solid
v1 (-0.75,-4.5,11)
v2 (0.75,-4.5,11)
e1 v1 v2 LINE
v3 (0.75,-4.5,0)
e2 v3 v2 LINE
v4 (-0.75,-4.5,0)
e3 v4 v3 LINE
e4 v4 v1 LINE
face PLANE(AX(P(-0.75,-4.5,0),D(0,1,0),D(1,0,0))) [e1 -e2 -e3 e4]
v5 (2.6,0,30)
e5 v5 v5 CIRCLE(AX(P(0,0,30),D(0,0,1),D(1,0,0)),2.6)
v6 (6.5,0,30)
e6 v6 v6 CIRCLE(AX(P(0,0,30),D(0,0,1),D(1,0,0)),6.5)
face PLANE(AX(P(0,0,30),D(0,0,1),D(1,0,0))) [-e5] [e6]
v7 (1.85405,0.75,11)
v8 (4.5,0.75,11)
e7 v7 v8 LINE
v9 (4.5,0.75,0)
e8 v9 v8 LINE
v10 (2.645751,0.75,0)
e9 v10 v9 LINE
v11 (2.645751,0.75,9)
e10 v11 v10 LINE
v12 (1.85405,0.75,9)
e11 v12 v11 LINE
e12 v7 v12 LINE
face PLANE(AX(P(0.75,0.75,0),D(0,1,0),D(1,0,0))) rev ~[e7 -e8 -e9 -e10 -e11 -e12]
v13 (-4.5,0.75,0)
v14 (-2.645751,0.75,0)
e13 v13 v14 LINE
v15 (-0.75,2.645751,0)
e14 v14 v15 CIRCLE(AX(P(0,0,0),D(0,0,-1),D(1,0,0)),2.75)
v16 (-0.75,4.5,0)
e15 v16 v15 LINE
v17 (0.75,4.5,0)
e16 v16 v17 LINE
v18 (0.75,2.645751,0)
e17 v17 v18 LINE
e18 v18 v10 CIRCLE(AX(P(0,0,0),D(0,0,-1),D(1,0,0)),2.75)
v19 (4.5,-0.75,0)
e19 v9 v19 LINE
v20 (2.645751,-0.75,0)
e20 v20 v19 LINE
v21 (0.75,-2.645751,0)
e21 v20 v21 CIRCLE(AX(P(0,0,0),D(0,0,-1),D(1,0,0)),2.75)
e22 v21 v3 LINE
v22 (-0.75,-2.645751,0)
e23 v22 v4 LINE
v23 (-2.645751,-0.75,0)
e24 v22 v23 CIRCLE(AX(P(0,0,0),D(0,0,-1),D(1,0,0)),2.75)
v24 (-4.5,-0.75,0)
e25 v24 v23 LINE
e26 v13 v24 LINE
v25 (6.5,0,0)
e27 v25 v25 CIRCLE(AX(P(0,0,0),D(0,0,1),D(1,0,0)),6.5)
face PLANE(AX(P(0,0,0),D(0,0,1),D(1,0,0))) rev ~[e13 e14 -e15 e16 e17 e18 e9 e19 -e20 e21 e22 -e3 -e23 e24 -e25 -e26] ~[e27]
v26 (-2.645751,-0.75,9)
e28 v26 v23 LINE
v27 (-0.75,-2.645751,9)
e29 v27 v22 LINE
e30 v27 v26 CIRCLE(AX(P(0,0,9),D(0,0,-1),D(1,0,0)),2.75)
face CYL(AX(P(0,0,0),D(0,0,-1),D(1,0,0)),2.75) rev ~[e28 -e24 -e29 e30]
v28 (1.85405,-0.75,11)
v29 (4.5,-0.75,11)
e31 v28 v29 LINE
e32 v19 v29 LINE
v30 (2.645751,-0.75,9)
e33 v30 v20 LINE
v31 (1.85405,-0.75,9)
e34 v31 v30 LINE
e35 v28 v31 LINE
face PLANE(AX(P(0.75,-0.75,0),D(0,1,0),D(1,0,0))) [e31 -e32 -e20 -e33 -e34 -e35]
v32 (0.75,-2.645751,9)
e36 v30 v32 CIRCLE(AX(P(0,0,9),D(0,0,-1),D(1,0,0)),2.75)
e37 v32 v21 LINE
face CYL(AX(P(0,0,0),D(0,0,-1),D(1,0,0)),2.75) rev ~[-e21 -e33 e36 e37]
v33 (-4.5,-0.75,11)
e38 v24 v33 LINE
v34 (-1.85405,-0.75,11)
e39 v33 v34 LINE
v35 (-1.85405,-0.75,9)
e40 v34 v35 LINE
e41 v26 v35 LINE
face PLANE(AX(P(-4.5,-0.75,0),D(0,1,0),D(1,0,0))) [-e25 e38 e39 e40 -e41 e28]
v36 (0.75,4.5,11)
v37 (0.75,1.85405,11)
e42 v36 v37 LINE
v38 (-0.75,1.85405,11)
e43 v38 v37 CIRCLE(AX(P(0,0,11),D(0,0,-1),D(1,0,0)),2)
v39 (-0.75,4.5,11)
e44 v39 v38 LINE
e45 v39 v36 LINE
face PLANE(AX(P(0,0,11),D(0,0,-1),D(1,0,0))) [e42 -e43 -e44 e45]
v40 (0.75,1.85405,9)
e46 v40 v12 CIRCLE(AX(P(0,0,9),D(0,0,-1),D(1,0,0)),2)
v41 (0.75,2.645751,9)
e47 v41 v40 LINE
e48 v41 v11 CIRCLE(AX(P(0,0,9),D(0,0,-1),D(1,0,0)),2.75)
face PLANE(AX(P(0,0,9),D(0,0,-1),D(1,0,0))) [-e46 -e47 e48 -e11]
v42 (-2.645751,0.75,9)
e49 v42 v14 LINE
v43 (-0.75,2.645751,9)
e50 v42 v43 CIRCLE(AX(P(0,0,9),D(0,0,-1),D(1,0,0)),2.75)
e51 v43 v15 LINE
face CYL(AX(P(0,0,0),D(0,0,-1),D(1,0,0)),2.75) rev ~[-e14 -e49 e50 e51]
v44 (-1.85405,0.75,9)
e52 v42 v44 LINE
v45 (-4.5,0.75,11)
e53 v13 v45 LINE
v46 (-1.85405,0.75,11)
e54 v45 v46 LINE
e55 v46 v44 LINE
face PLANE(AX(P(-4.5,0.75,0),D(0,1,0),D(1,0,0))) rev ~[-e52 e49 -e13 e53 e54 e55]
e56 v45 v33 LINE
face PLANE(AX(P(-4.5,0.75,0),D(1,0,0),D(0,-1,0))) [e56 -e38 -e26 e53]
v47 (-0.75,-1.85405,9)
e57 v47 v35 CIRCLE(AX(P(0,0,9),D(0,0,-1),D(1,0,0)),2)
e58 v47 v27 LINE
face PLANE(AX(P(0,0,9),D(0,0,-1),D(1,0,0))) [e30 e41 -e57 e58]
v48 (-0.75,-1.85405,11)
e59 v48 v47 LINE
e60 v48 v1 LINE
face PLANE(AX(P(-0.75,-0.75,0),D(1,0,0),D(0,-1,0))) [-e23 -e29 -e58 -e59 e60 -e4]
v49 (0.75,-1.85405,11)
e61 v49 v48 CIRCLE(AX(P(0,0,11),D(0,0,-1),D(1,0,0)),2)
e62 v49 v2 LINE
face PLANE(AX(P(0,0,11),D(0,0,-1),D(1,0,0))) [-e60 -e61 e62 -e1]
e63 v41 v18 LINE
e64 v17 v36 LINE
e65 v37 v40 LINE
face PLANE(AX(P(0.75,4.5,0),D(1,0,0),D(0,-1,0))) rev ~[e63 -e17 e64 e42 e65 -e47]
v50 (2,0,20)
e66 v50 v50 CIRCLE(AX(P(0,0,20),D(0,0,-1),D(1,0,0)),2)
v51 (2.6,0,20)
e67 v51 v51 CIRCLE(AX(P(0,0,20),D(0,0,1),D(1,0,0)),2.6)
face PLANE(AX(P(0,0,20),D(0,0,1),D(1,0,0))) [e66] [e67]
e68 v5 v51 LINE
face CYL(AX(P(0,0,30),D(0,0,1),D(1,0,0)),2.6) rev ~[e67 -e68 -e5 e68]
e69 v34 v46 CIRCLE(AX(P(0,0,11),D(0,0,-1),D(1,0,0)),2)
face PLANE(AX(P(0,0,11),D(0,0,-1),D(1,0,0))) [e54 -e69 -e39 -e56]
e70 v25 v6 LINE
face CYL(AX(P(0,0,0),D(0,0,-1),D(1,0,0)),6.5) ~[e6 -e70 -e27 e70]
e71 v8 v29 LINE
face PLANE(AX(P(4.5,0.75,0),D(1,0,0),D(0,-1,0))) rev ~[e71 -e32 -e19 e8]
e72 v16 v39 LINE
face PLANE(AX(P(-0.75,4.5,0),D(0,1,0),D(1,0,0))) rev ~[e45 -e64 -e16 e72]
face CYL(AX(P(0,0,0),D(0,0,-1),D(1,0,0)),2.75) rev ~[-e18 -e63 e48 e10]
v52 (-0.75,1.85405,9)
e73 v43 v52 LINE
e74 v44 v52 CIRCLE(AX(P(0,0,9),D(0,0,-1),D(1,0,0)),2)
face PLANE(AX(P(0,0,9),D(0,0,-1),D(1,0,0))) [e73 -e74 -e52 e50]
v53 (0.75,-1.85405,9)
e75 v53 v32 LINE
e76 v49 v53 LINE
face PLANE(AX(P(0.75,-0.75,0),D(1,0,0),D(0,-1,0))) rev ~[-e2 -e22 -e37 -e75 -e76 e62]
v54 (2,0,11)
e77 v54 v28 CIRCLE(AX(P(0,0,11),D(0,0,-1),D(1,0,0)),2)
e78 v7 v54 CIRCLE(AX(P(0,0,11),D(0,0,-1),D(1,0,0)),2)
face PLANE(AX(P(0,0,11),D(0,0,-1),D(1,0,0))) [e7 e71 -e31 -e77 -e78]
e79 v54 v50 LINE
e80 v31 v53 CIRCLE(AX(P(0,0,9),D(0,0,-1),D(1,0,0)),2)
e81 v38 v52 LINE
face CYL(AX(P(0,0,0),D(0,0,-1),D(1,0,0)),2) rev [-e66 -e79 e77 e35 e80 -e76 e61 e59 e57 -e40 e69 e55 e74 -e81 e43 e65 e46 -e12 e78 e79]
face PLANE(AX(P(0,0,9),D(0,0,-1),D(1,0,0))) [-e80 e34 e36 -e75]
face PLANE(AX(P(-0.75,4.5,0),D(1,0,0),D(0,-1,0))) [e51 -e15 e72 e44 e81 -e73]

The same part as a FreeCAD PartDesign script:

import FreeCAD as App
import Part
import Sketcher

V = App.Vector


def add_polygon(sketch, points):
    """Adds a closed chain of lines whose ends are joined by coincident constraints."""
    first, n = sketch.GeometryCount, len(points)
    for a, b in zip(points, points[1:] + points[:1]):
        sketch.addGeometry(Part.LineSegment(App.Vector(*a, 0), App.Vector(*b, 0)), False)
    for i in range(n):
        sketch.addConstraint(Sketcher.Constraint("Coincident", first + i, 2, first + (i + 1) % n, 1))

doc = App.newDocument("Part")
params = doc.addObject("Spreadsheet::Sheet", "Params")
for row, (alias, value) in enumerate([
    ("sketch1_diameter", "13 mm"),
    ("sketch1_diameter2", "4 mm"),
    ("pad1_length", "30 mm"),
    ("sketch2_diameter", "5.2 mm"),
    ("pocket1_length", "10 mm"),
    ("sketch3_diameter", "5.5 mm"),
    ("pocket2_length", "9 mm"),
    ("sketch4_width", "1.5 mm"),
    ("pocket3_length", "11 mm"),
], start=1):
    params.set(f"A{row}", alias)
    params.set(f"B{row}", "=" + value)
    params.setAlias(f"B{row}", alias)

body = doc.addObject("PartDesign::Body", "Body")

sketch1 = body.newObject("Sketcher::SketchObject", "Sketch")
sketch1.AttachmentSupport = (doc.getObject("XY_Plane"), [""])
sketch1.MapMode = "FlatFace"
sketch1.addGeometry([
    Part.Circle(V(0, 0, 0), V(0, 0, 1), 6.5),
    Part.Circle(V(0, 0, 0), V(0, 0, 1), 2),
], False)
sketch1.addConstraint([
    Sketcher.Constraint("Coincident", 0, 3, -1, 1),
    Sketcher.Constraint("Coincident", 1, 3, -1, 1),
    Sketcher.Constraint("Diameter", 0, 13.0),
    Sketcher.Constraint("Diameter", 1, 4.0),
])
sketch1.setExpression("Constraints[2]", "Params.sketch1_diameter")
sketch1.setExpression("Constraints[3]", "Params.sketch1_diameter2")
pad1 = body.newObject("PartDesign::Pad", "Pad")
pad1.Profile = sketch1
pad1.setExpression("Length", "Params.pad1_length")

sketch2 = body.newObject("Sketcher::SketchObject", "Sketch001")
sketch2.AttachmentSupport = (doc.getObject("XY_Plane"), [""])
sketch2.MapMode = "FlatFace"
sketch2.AttachmentOffset = App.Placement(V(0, 0, 30), App.Rotation())
sketch2.addGeometry(Part.Circle(V(0, 0, 0), V(0, 0, 1), 2.6), False)
sketch2.addConstraint([
    Sketcher.Constraint("Coincident", 0, 3, -1, 1),
    Sketcher.Constraint("Diameter", 0, 5.2),
])
sketch2.setExpression("Constraints[1]", "Params.sketch2_diameter")
pocket1 = body.newObject("PartDesign::Pocket", "Pocket")
pocket1.Profile = sketch2
pocket1.setExpression("Length", "Params.pocket1_length")

sketch3 = body.newObject("Sketcher::SketchObject", "Sketch002")
sketch3.AttachmentSupport = (doc.getObject("XY_Plane"), [""])
sketch3.MapMode = "FlatFace"
sketch3.addGeometry(Part.Circle(V(0, 0, 0), V(0, 0, 1), 2.75), False)
sketch3.addConstraint([
    Sketcher.Constraint("Coincident", 0, 3, -1, 1),
    Sketcher.Constraint("Diameter", 0, 5.5),
])
sketch3.setExpression("Constraints[1]", "Params.sketch3_diameter")
pocket2 = body.newObject("PartDesign::Pocket", "Pocket001")
pocket2.Profile = sketch3
pocket2.setExpression("Length", "Params.pocket2_length")
pocket2.Reversed = True

sketch4 = body.newObject("Sketcher::SketchObject", "Sketch003")
sketch4.AttachmentSupport = (doc.getObject("XY_Plane"), [""])
sketch4.MapMode = "FlatFace"
add_polygon(sketch4, [(-4.5, -0.75), (-4.5, 0.75), (-0.75, 0.75), (-0.75, 4.5), (0.75, 4.5), (0.75, 0.75), (4.5, 0.75), (4.5, -0.75), (0.75, -0.75), (0.75, -4.5), (-0.75, -4.5), (-0.75, -0.75)])
sketch4.addConstraint([
    Sketcher.Constraint("Vertical", 0),
    Sketcher.Constraint("Horizontal", 1),
    Sketcher.Constraint("Vertical", 2),
    Sketcher.Constraint("Horizontal", 3),
    Sketcher.Constraint("Vertical", 4),
    Sketcher.Constraint("Horizontal", 5),
    Sketcher.Constraint("Vertical", 6),
    Sketcher.Constraint("Horizontal", 7),
    Sketcher.Constraint("Vertical", 8),
    Sketcher.Constraint("Horizontal", 9),
    Sketcher.Constraint("Vertical", 10),
    Sketcher.Constraint("Horizontal", 11),
    Sketcher.Constraint("Symmetric", 0, 2, 6, 2, -1, 1),
    Sketcher.Constraint("Symmetric", 2, 2, 8, 2, -1, 1),
    Sketcher.Constraint("Symmetric", 4, 2, 10, 2, -1, 1),
    Sketcher.Constraint("Symmetric", 1, 2, 4, 2, -2),
    Sketcher.Constraint("Equal", 9, 0),
    Sketcher.Constraint("Equal", 11, 2),
    Sketcher.Constraint("DistanceX", 3, 1, 3, 2, 1.5),
    Sketcher.Constraint("DistanceX", 0, 2, 5, 2, 9.0),
])
sketch4.setExpression("Constraints[30]", "Params.sketch4_width")
pocket3 = body.newObject("PartDesign::Pocket", "Pocket002")
pocket3.Profile = sketch4
pocket3.setExpression("Length", "Params.pocket3_length")
pocket3.Reversed = True

doc.recompute()
